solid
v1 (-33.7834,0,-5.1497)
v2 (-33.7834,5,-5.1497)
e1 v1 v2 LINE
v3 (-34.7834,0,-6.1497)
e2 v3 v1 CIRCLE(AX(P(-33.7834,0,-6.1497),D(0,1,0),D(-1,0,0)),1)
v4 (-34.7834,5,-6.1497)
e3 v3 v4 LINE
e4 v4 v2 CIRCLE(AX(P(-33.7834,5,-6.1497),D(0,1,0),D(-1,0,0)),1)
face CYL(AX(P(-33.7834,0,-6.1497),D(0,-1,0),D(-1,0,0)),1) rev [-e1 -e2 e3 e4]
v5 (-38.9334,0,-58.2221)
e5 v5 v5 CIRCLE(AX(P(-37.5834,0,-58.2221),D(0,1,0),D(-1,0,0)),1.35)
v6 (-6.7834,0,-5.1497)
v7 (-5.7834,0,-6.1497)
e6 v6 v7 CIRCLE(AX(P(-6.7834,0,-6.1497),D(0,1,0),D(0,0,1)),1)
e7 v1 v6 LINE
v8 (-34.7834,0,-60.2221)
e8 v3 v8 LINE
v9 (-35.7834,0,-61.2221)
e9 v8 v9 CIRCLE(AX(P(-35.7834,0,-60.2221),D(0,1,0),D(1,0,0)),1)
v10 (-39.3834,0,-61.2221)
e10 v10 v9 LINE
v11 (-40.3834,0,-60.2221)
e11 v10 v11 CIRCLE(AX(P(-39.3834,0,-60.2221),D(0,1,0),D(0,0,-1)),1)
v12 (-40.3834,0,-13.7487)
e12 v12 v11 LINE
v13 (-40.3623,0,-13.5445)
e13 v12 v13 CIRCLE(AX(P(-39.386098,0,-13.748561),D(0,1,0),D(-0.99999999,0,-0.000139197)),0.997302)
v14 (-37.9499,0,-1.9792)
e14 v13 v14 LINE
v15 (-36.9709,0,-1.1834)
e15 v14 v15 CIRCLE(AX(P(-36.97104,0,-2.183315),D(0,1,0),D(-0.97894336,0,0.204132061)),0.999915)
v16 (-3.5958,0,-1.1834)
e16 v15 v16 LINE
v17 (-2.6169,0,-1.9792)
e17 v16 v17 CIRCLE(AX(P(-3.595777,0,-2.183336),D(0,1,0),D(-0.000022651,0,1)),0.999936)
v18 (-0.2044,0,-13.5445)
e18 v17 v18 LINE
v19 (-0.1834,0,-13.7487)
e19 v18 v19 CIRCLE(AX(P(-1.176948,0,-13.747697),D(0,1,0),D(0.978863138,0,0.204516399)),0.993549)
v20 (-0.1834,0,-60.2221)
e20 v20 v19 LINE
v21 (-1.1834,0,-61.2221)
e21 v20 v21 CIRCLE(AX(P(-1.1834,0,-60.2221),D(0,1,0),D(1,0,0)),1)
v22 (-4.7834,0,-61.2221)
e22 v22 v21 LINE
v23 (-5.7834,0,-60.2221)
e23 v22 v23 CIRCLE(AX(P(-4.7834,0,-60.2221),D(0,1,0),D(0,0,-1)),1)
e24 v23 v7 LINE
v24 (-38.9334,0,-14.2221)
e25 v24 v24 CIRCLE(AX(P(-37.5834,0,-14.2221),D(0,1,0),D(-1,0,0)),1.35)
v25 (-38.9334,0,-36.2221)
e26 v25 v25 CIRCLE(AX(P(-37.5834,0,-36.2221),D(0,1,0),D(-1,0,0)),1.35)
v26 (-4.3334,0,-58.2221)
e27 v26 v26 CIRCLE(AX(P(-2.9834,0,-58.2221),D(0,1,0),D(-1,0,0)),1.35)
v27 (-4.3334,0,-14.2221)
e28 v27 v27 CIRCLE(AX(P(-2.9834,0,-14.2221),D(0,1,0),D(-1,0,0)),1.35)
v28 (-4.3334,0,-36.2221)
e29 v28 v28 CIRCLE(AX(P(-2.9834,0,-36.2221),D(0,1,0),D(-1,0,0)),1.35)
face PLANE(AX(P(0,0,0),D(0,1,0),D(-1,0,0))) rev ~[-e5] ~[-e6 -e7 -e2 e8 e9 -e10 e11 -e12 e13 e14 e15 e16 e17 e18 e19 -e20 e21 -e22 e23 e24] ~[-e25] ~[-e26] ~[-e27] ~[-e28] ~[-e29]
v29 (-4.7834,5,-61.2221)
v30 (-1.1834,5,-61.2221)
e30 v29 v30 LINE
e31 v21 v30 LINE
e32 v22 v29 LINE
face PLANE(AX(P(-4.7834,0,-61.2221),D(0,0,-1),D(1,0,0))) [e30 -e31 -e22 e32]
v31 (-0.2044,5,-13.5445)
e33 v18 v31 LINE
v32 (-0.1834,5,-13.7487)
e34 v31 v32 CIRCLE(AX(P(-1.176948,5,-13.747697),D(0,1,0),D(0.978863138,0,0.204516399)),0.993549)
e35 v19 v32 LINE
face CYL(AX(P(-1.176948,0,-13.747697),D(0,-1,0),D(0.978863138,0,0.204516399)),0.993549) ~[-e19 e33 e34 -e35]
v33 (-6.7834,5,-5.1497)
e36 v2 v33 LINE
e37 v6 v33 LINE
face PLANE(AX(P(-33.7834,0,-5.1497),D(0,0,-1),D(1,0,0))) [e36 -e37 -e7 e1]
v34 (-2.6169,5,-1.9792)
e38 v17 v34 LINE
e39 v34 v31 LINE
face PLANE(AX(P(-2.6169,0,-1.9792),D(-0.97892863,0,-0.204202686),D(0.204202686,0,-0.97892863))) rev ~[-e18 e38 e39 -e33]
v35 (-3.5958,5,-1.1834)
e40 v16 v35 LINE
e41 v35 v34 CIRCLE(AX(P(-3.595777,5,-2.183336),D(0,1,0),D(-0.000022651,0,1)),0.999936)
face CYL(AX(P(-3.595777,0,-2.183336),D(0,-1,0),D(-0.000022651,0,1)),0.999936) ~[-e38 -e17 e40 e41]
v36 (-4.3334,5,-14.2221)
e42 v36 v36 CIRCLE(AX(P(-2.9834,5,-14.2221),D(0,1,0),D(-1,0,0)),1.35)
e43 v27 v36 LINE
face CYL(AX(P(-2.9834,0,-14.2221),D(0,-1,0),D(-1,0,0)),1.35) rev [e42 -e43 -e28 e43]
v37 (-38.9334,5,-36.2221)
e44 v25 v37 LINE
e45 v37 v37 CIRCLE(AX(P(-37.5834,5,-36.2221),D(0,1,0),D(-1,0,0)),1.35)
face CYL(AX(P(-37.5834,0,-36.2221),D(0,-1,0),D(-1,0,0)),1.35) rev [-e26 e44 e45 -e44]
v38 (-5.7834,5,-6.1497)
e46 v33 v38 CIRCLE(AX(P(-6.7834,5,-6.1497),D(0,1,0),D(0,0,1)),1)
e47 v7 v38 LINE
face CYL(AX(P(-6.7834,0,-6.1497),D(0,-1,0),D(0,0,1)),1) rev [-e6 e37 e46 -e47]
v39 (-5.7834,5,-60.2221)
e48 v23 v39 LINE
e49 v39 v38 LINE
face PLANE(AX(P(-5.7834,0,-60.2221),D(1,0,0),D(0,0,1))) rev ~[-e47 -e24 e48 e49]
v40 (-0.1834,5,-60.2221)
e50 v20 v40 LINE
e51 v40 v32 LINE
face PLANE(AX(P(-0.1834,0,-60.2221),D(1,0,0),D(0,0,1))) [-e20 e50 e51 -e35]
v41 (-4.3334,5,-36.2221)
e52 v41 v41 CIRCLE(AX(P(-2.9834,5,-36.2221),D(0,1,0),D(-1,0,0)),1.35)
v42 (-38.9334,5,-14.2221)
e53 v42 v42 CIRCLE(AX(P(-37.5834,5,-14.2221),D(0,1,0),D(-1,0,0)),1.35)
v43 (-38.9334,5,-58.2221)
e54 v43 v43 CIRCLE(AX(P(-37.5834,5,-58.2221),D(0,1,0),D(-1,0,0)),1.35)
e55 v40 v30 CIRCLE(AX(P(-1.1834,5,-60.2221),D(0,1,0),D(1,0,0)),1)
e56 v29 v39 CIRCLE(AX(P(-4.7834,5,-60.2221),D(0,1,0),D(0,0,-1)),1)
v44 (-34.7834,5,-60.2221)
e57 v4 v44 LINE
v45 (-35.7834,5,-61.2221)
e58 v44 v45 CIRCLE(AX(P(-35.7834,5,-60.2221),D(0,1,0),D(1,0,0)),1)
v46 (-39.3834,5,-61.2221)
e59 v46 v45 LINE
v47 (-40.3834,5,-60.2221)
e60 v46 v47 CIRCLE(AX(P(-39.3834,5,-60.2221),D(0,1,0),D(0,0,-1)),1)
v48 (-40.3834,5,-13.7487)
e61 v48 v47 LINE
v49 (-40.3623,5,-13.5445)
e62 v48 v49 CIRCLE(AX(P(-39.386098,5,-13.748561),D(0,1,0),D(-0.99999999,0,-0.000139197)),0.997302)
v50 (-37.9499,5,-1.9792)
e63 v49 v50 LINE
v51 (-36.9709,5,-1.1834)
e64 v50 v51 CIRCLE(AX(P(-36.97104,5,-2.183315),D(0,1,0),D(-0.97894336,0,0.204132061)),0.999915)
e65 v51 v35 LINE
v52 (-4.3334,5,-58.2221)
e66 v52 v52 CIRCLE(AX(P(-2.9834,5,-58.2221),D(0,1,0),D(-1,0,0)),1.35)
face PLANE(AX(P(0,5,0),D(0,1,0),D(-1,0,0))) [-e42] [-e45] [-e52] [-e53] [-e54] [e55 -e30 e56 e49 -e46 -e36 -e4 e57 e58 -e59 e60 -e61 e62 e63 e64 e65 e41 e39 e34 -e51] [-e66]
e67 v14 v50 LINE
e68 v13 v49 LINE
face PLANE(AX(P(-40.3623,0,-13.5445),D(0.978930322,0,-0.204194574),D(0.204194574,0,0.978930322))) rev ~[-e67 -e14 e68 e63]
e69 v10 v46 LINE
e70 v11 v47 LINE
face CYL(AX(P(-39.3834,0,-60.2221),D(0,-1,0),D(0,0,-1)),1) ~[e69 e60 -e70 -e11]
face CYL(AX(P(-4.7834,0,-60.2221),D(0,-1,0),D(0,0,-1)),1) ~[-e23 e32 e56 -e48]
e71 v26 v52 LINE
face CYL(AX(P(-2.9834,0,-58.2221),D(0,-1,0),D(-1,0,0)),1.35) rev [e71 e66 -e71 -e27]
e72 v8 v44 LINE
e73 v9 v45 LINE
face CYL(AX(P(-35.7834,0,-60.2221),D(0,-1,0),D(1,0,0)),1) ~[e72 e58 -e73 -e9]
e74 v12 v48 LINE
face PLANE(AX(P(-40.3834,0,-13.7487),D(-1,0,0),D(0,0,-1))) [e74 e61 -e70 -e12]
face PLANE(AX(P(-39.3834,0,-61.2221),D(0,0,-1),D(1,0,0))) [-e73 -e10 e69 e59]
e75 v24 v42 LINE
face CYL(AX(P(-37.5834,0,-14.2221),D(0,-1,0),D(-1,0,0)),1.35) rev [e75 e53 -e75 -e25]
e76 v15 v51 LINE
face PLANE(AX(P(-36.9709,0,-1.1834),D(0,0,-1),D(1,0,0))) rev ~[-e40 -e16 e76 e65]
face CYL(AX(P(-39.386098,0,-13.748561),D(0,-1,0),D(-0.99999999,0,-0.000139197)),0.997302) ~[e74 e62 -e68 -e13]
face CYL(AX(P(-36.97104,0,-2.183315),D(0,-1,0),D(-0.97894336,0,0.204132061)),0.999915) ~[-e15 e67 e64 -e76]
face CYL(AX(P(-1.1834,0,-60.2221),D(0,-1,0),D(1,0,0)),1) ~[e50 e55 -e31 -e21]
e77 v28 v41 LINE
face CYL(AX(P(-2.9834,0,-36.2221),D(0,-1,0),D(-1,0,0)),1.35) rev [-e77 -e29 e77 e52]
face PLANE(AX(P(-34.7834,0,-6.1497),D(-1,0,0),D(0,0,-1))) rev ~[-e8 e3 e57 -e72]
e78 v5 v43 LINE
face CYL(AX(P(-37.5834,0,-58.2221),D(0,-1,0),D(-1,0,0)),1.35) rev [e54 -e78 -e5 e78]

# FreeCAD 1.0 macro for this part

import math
import FreeCAD as App
import Part
import Sketcher

V = App.Vector
Q = App.Units.Quantity

doc = App.newDocument("Part")
params = doc.addObject("Spreadsheet::Sheet", "Params")
for row, (alias, value) in enumerate([
    ("sketch1_radius", "1 mm"),
    ("sketch1_radius2", "1 mm"),
    ("sketch1_radius3", "1 mm"),
    ("sketch1_radius4", "1 mm"),
    ("sketch1_radius5", "1 mm"),
    ("pad1_length", "5 mm"),
], start=1):
    params.set(f"A{row}", alias)
    params.set(f"B{row}", "=" + value)
    params.setAlias(f"B{row}", alias)

body = doc.addObject("PartDesign::Body", "Body")

# Sketch on XZ plane
sketch1 = body.newObject("Sketcher::SketchObject", "Sketch")
sketch1.AttachmentSupport = (doc.getObject("XZ_Plane"), [""])
sketch1.MapMode = "FlatFace"
sketch1.addGeometry([
    Part.LineSegment(V(-0.1834, -13.7487, 0), V(-0.1834, -60.2221, 0)),  # 0
    Part.ArcOfCircle(Part.Circle(V(-1.1834, -60.2221, 0), V(0, 0, 1), 1), math.radians(-90), math.radians(0)),  # 1
    Part.LineSegment(V(-1.1834, -61.2221, 0), V(-4.7834, -61.2221, 0)),  # 2
    Part.ArcOfCircle(Part.Circle(V(-4.7834, -60.2221, 0), V(0, 0, 1), 1), math.radians(180), math.radians(270)),  # 3
    Part.LineSegment(V(-5.7834, -60.2221, 0), V(-5.7834, -6.1497, 0)),  # 4
    Part.ArcOfCircle(Part.Circle(V(-6.7834, -6.1497, 0), V(0, 0, 1), 1), math.radians(0), math.radians(90)),  # 5
    Part.LineSegment(V(-6.7834, -5.1497, 0), V(-33.7834, -5.1497, 0)),  # 6
    Part.ArcOfCircle(Part.Circle(V(-33.7834, -6.1497, 0), V(0, 0, 1), 1), math.radians(90), math.radians(180)),  # 7
    Part.LineSegment(V(-34.7834, -6.1497, 0), V(-34.7834, -60.2221, 0)),  # 8
    Part.ArcOfCircle(Part.Circle(V(-35.7834, -60.2221, 0), V(0, 0, 1), 1), math.radians(-90), math.radians(0)),  # 9
    Part.LineSegment(V(-35.7834, -61.2221, 0), V(-39.3834, -61.2221, 0)),  # 10
    Part.ArcOfCircle(Part.Circle(V(-39.3834, -60.2221, 0), V(0, 0, 1), 1), math.radians(180), math.radians(270)),  # 11
    Part.LineSegment(V(-40.3834, -60.2221, 0), V(-40.3834, -13.7487, 0)),  # 12
    Part.ArcOfCircle(Part.Circle(V(-39.386098, -13.748561, 0), V(0, 0, 1), 0.997302), math.radians(168.193145), math.radians(180.007975)),  # 13
    Part.LineSegment(V(-40.3623, -13.5445, 0), V(-37.9499, -1.9792, 0)),  # 14
    Part.ArcOfCircle(Part.Circle(V(-36.9709, -2.1834, 0), V(0, 0, 1), 1.000069), math.radians(90), math.radians(168.218157)),  # 15
    Part.LineSegment(V(-36.9709, -1.1834, 0), V(-3.5958, -1.1834, 0)),  # 16
    Part.ArcOfCircle(Part.Circle(V(-3.5958, -2.1834, 0), V(0, 0, 1), 1), math.radians(11.783013), math.radians(90)),  # 17
    Part.LineSegment(V(-2.6169, -1.9792, 0), V(-0.2044, -13.5445, 0)),  # 18
    Part.ArcOfCircle(Part.Circle(V(-1.176948, -13.747697, 0), V(0, 0, 1), 0.993549), math.radians(-0.057838), math.radians(11.801191)),  # 19
    Part.Circle(V(-2.9834, -58.2221, 0), V(0, 0, 1), 1.35),  # 20
    Part.Circle(V(-2.9834, -36.2221, 0), V(0, 0, 1), 1.35),  # 21
    Part.Circle(V(-37.5834, -58.2221, 0), V(0, 0, 1), 1.35),  # 22
    Part.Circle(V(-37.5834, -36.2221, 0), V(0, 0, 1), 1.35),  # 23
    Part.Circle(V(-2.9834, -14.2221, 0), V(0, 0, 1), 1.35),  # 24
    Part.Circle(V(-37.5834, -14.2221, 0), V(0, 0, 1), 1.35),  # 25
], False)
sketch1.addConstraint([
    Sketcher.Constraint("Coincident", 0, 2, 1, 2),
    Sketcher.Constraint("Coincident", 1, 1, 2, 1),
    Sketcher.Constraint("Coincident", 2, 2, 3, 2),
    Sketcher.Constraint("Coincident", 3, 1, 4, 1),
    Sketcher.Constraint("Coincident", 4, 2, 5, 1),
    Sketcher.Constraint("Coincident", 5, 2, 6, 1),
    Sketcher.Constraint("Coincident", 6, 2, 7, 1),
    Sketcher.Constraint("Coincident", 7, 2, 8, 1),
    Sketcher.Constraint("Coincident", 8, 2, 9, 2),
    Sketcher.Constraint("Coincident", 9, 1, 10, 1),
    Sketcher.Constraint("Coincident", 10, 2, 11, 2),
    Sketcher.Constraint("Coincident", 11, 1, 12, 1),
    Sketcher.Constraint("Coincident", 12, 2, 13, 2),
    Sketcher.Constraint("Coincident", 13, 1, 14, 1),
    Sketcher.Constraint("Coincident", 14, 2, 15, 2),
    Sketcher.Constraint("Coincident", 15, 1, 16, 1),
    Sketcher.Constraint("Coincident", 16, 2, 17, 2),
    Sketcher.Constraint("Coincident", 17, 1, 18, 1),
    Sketcher.Constraint("Coincident", 18, 2, 19, 2),
    Sketcher.Constraint("Coincident", 19, 1, 0, 1),
    Sketcher.Constraint("Vertical", 0),
    Sketcher.Constraint("Horizontal", 2),
    Sketcher.Constraint("Vertical", 4),
    Sketcher.Constraint("Horizontal", 6),
    Sketcher.Constraint("Vertical", 8),
    Sketcher.Constraint("Horizontal", 10),
    Sketcher.Constraint("Vertical", 12),
    Sketcher.Constraint("Horizontal", 16),
    Sketcher.Constraint("Radius", 1, Q("1 mm")),
    Sketcher.Constraint("Radius", 3, Q("1 mm")),
    Sketcher.Constraint("Radius", 5, Q("1 mm")),
    Sketcher.Constraint("Radius", 7, Q("1 mm")),
    Sketcher.Constraint("Radius", 9, Q("1 mm")),
    Sketcher.Constraint("Radius", 11, Q("1 mm")),
    Sketcher.Constraint("Radius", 15, Q("1 mm")),
    Sketcher.Constraint("Radius", 17, Q("1 mm")),
    Sketcher.Constraint("Diameter", 20, Q("2.7 mm")),
    Sketcher.Constraint("Diameter", 21, Q("2.7 mm")),
    Sketcher.Constraint("Diameter", 22, Q("2.7 mm")),
    Sketcher.Constraint("Diameter", 23, Q("2.7 mm")),
    Sketcher.Constraint("Diameter", 24, Q("2.7 mm")),
    Sketcher.Constraint("Diameter", 25, Q("2.7 mm")),
    Sketcher.Constraint("DistanceX", 6, 2, 6, 1, Q("27 mm")),
    Sketcher.Constraint("DistanceX", 2, 2, 2, 1, Q("3.6 mm")),
    Sketcher.Constraint("DistanceX", 10, 2, 10, 1, Q("3.6 mm")),
    Sketcher.Constraint("DistanceX", 7, 3, 5, 3, Q("27 mm")),
    Sketcher.Constraint("DistanceY", 1, 3, 20, 3, Q("2 mm")),
    Sketcher.Constraint("DistanceY", 9, 3, 20, 3, Q("2 mm")),
    Sketcher.Constraint("DistanceY", 20, 3, 21, 3, Q("22 mm")),
    Sketcher.Constraint("DistanceY", 9, 3, 22, 3, Q("2 mm")),
    Sketcher.Constraint("DistanceY", 22, 3, 23, 3, Q("22 mm")),
    Sketcher.Constraint("DistanceY", 21, 3, 24, 3, Q("22 mm")),
    Sketcher.Constraint("DistanceY", 23, 3, 25, 3, Q("22 mm")),
    Sketcher.Constraint("DistanceY", 0, 2, 20, 3, Q("2 mm")),
    Sketcher.Constraint("DistanceX", 1, 1, 0, 2, Q("1 mm")),
    Sketcher.Constraint("DistanceX", 3, 1, 2, 2, Q("1 mm")),
    Sketcher.Constraint("DistanceY", 2, 2, 3, 1, Q("1 mm")),
    Sketcher.Constraint("DistanceX", 5, 2, 4, 2, Q("1 mm")),
    Sketcher.Constraint("DistanceY", 4, 2, 5, 2, Q("1 mm")),
    Sketcher.Constraint("DistanceY", 7, 2, 6, 2, Q("1 mm")),
    Sketcher.Constraint("DistanceY", 8, 2, 22, 3, Q("2 mm")),
    Sketcher.Constraint("DistanceX", 9, 1, 8, 2, Q("1 mm")),
    Sketcher.Constraint("DistanceX", 11, 1, 10, 2, Q("1 mm")),
    Sketcher.Constraint("DistanceY", 10, 2, 11, 1, Q("1 mm")),
    Sketcher.Constraint("Radius", 13, Q("0.9973 mm")),
    Sketcher.Constraint("Radius", 19, Q("0.9935 mm")),
    Sketcher.Constraint("DistanceX", 20, 3, 1, 3, Q("1.8 mm")),
    Sketcher.Constraint("DistanceX", 21, 3, 1, 3, Q("1.8 mm")),
    Sketcher.Constraint("DistanceX", 22, 3, 9, 3, Q("1.8 mm")),
    Sketcher.Constraint("DistanceX", 23, 3, 9, 3, Q("1.8 mm")),
    Sketcher.Constraint("DistanceX", 5, 3, 24, 3, Q("3.8 mm")),
    Sketcher.Constraint("DistanceX", 25, 3, 7, 3, Q("3.8 mm")),
    Sketcher.Constraint("DistanceX", 16, 1, 16, 2, Q("33.375 mm")),
    Sketcher.Constraint("DistanceX", 14, 2, -1, 1, Q("37.95 mm")),
    Sketcher.Constraint("DistanceY", 0, 2, 0, 1, Q("46.4734 mm")),
    Sketcher.Constraint("DistanceY", 4, 1, 4, 2, Q("54.0724 mm")),
    Sketcher.Constraint("DistanceY", 12, 1, 12, 2, Q("46.4734 mm")),
    Sketcher.Constraint("DistanceY", 1, 3, -1, 1, Q("60.222 mm")),
    Sketcher.Constraint("DistanceX", 13, 3, -1, 1, Q("39.386 mm")),
    Sketcher.Constraint("DistanceX", 15, 3, -1, 1, Q("36.971 mm")),
    Sketcher.Constraint("DistanceX", 15, 1, -1, 1, Q("36.971 mm")),
    Sketcher.Constraint("DistanceX", 15, 3, 17, 3, Q("33.375 mm")),
    Sketcher.Constraint("DistanceY", 19, 3, 5, 3, Q("7.598 mm")),
    Sketcher.Constraint("DistanceX", 12, 2, 13, 1, Q("0.021 mm")),
    Sketcher.Constraint("DistanceX", 17, 3, 17, 1, Q("0.979 mm")),
    Sketcher.Constraint("DistanceX", 24, 3, 18, 2, Q("2.779 mm")),
    Sketcher.Constraint("Distance", 14, Q("11.8142 mm")),
    Sketcher.Constraint("Distance", 18, Q("11.8142 mm")),
])
sketch1.setExpression("Constraints[28]", "Params.sketch1_radius")
sketch1.setExpression("Constraints[29]", "Params.sketch1_radius2")
sketch1.setExpression("Constraints[30]", "Params.sketch1_radius3")
sketch1.setExpression("Constraints[31]", "Params.sketch1_radius4")
sketch1.setExpression("Constraints[32]", "Params.sketch1_radius5")
pad1 = body.newObject("PartDesign::Pad", "Pad")
pad1.Profile = sketch1
pad1.setExpression("Length", "Params.pad1_length")
pad1.Reversed = True

doc.recompute()
